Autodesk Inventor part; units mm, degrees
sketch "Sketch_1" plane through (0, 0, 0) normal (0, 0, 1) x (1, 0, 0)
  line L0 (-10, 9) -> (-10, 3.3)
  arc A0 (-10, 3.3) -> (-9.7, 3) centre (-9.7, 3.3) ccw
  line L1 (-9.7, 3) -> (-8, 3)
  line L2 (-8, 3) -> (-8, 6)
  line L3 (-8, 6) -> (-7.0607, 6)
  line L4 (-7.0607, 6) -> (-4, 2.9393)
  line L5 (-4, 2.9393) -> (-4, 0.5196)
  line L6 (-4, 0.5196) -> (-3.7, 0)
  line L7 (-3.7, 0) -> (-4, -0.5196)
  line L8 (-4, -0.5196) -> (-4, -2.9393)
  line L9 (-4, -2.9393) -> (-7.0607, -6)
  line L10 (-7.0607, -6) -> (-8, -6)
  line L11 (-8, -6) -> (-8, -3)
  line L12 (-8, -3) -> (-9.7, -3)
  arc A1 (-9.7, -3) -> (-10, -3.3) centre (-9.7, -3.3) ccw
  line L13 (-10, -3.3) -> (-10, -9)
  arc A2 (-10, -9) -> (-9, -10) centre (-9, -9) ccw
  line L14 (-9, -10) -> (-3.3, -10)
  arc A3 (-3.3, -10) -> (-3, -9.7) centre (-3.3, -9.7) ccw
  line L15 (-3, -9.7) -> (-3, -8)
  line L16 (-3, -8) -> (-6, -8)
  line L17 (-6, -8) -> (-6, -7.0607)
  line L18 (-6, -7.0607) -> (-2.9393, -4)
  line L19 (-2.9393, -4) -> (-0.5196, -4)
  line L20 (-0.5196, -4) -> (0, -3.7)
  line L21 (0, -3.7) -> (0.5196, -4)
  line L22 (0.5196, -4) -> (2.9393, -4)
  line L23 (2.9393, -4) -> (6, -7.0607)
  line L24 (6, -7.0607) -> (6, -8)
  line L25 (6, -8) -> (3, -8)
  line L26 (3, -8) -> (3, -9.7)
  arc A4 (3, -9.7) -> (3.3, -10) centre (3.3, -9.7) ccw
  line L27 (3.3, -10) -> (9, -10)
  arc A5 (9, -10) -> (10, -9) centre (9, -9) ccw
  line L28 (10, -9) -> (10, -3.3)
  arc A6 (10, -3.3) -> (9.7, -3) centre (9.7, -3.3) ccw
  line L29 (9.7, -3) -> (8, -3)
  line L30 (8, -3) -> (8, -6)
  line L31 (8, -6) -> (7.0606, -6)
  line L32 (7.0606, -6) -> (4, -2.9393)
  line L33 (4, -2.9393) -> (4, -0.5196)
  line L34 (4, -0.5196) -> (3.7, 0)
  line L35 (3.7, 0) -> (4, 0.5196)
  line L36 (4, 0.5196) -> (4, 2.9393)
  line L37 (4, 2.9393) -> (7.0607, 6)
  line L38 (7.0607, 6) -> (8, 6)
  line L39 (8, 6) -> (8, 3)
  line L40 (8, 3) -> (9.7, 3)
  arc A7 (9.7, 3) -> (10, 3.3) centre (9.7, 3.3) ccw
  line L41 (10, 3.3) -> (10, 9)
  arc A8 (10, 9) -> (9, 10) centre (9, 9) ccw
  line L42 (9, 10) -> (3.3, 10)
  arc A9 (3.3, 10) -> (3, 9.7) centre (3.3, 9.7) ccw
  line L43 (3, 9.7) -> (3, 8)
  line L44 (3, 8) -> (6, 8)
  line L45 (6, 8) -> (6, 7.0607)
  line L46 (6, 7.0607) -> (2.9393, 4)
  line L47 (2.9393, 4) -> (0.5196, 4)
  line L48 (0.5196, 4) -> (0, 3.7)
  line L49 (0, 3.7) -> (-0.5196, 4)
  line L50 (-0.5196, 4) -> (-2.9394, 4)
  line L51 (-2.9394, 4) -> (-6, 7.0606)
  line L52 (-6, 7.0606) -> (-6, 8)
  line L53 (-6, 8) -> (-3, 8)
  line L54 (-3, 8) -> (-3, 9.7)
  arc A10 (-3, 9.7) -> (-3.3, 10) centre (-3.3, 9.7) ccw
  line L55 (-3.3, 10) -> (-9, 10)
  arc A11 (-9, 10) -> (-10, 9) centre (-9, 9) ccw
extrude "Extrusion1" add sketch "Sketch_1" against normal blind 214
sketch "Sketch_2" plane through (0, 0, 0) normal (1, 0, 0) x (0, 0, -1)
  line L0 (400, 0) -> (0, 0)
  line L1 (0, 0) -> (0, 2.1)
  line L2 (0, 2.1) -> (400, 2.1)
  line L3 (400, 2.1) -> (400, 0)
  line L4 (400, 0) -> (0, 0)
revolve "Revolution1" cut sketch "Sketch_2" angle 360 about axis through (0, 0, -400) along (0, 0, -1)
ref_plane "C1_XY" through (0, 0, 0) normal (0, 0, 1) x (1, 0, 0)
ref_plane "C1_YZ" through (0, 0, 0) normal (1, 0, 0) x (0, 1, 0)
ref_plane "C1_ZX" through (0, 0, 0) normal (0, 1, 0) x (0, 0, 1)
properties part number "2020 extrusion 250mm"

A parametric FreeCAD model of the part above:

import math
import FreeCAD as App
import Part
import Sketcher

V = App.Vector
Q = App.Units.Quantity


def add_polygon(sketch, points):
    """Adds a closed chain of lines whose ends are joined by coincident constraints."""
    first, n = sketch.GeometryCount, len(points)
    for a, b in zip(points, points[1:] + points[:1]):
        sketch.addGeometry(Part.LineSegment(App.Vector(*a, 0), App.Vector(*b, 0)), False)
    for i in range(n):
        sketch.addConstraint(Sketcher.Constraint("Coincident", first + i, 2, first + (i + 1) % n, 1))

doc = App.newDocument("Part")
body = doc.addObject("PartDesign::Body", "Body")

# Sketch on XY plane
sketch1 = body.newObject("Sketcher::SketchObject", "Sketch")
sketch1.AttachmentSupport = (doc.getObject("XY_Plane"), [""])
sketch1.MapMode = "FlatFace"
sketch1.addGeometry(Part.ArcOfCircle(Part.Circle(V(-9, 9, 0), V(0, 0, 1), 1), math.radians(90), math.radians(180)), False)
sketch1.addGeometry(Part.LineSegment(V(-10, 9, 0), V(-10, 3.3, 0)), False)
sketch1.addGeometry(Part.ArcOfCircle(Part.Circle(V(-9.7, 3.3, 0), V(0, 0, 1), 0.3), math.radians(180), math.radians(270)), False)
sketch1.addGeometry(Part.LineSegment(V(-9.7, 3, 0), V(-8, 3, 0)), False)
sketch1.addGeometry(Part.LineSegment(V(-8, 3, 0), V(-8, 6, 0)), False)
sketch1.addGeometry(Part.LineSegment(V(-8, 6, 0), V(-7.0607, 6, 0)), False)
sketch1.addGeometry(Part.LineSegment(V(-7.0607, 6, 0), V(-4, 2.9393, 0)), False)
sketch1.addGeometry(Part.LineSegment(V(-4, 2.9393, 0), V(-4, 0.5196, 0)), False)
sketch1.addGeometry(Part.LineSegment(V(-4, 0.5196, 0), V(-3.7, 0, 0)), False)
sketch1.addGeometry(Part.LineSegment(V(-3.7, 0, 0), V(-4, -0.5196, 0)), False)
sketch1.addGeometry(Part.LineSegment(V(-4, -0.5196, 0), V(-4, -2.9393, 0)), False)
sketch1.addGeometry(Part.LineSegment(V(-4, -2.9393, 0), V(-7.0607, -6, 0)), False)
sketch1.addGeometry(Part.LineSegment(V(-7.0607, -6, 0), V(-8, -6, 0)), False)
sketch1.addGeometry(Part.LineSegment(V(-8, -6, 0), V(-8, -3, 0)), False)
sketch1.addGeometry(Part.LineSegment(V(-8, -3, 0), V(-9.7, -3, 0)), False)
sketch1.addGeometry(Part.ArcOfCircle(Part.Circle(V(-9.7, -3.3, 0), V(0, 0, 1), 0.3), math.radians(90), math.radians(180)), False)
sketch1.addGeometry(Part.LineSegment(V(-10, -3.3, 0), V(-10, -9, 0)), False)
sketch1.addGeometry(Part.ArcOfCircle(Part.Circle(V(-9, -9, 0), V(0, 0, 1), 1), math.radians(180), math.radians(270)), False)
sketch1.addGeometry(Part.LineSegment(V(-9, -10, 0), V(-3.3, -10, 0)), False)
sketch1.addGeometry(Part.ArcOfCircle(Part.Circle(V(-3.3, -9.7, 0), V(0, 0, 1), 0.3), math.radians(-90), math.radians(0)), False)
sketch1.addGeometry(Part.LineSegment(V(-3, -9.7, 0), V(-3, -8, 0)), False)
sketch1.addGeometry(Part.LineSegment(V(-3, -8, 0), V(-6, -8, 0)), False)
sketch1.addGeometry(Part.LineSegment(V(-6, -8, 0), V(-6, -7.0607, 0)), False)
sketch1.addGeometry(Part.LineSegment(V(-6, -7.0607, 0), V(-2.9393, -4, 0)), False)
sketch1.addGeometry(Part.LineSegment(V(-2.9393, -4, 0), V(-0.5196, -4, 0)), False)
sketch1.addGeometry(Part.LineSegment(V(-0.5196, -4, 0), V(0, -3.7, 0)), False)
sketch1.addGeometry(Part.LineSegment(V(0, -3.7, 0), V(0.5196, -4, 0)), False)
sketch1.addGeometry(Part.LineSegment(V(0.5196, -4, 0), V(2.9393, -4, 0)), False)
sketch1.addGeometry(Part.LineSegment(V(2.9393, -4, 0), V(6, -7.0607, 0)), False)
sketch1.addGeometry(Part.LineSegment(V(6, -7.0607, 0), V(6, -8, 0)), False)
sketch1.addGeometry(Part.LineSegment(V(6, -8, 0), V(3, -8, 0)), False)
sketch1.addGeometry(Part.LineSegment(V(3, -8, 0), V(3, -9.7, 0)), False)
sketch1.addGeometry(Part.ArcOfCircle(Part.Circle(V(3.3, -9.7, 0), V(0, 0, 1), 0.3), math.radians(180), math.radians(270)), False)
sketch1.addGeometry(Part.LineSegment(V(3.3, -10, 0), V(9, -10, 0)), False)
sketch1.addGeometry(Part.ArcOfCircle(Part.Circle(V(9, -9, 0), V(0, 0, 1), 1), math.radians(-90), math.radians(0)), False)
sketch1.addGeometry(Part.LineSegment(V(10, -9, 0), V(10, -3.3, 0)), False)
sketch1.addGeometry(Part.ArcOfCircle(Part.Circle(V(9.7, -3.3, 0), V(0, 0, 1), 0.3), math.radians(0), math.radians(90)), False)
sketch1.addGeometry(Part.LineSegment(V(9.7, -3, 0), V(8, -3, 0)), False)
sketch1.addGeometry(Part.LineSegment(V(8, -3, 0), V(8, -6, 0)), False)
sketch1.addGeometry(Part.LineSegment(V(8, -6, 0), V(7.0606, -6, 0)), False)
sketch1.addGeometry(Part.LineSegment(V(7.0606, -6, 0), V(4, -2.9393, 0)), False)
sketch1.addGeometry(Part.LineSegment(V(4, -2.9393, 0), V(4, -0.5196, 0)), False)
sketch1.addGeometry(Part.LineSegment(V(4, -0.5196, 0), V(3.7, 0, 0)), False)
sketch1.addGeometry(Part.LineSegment(V(3.7, 0, 0), V(4, 0.5196, 0)), False)
sketch1.addGeometry(Part.LineSegment(V(4, 0.5196, 0), V(4, 2.9393, 0)), False)
sketch1.addGeometry(Part.LineSegment(V(4, 2.9393, 0), V(7.0607, 6, 0)), False)
sketch1.addGeometry(Part.LineSegment(V(7.0607, 6, 0), V(8, 6, 0)), False)
sketch1.addGeometry(Part.LineSegment(V(8, 6, 0), V(8, 3, 0)), False)
sketch1.addGeometry(Part.LineSegment(V(8, 3, 0), V(9.7, 3, 0)), False)
sketch1.addGeometry(Part.ArcOfCircle(Part.Circle(V(9.7, 3.3, 0), V(0, 0, 1), 0.3), math.radians(-90), math.radians(0)), False)
sketch1.addGeometry(Part.LineSegment(V(10, 3.3, 0), V(10, 9, 0)), False)
sketch1.addGeometry(Part.ArcOfCircle(Part.Circle(V(9, 9, 0), V(0, 0, 1), 1), math.radians(0), math.radians(90)), False)
sketch1.addGeometry(Part.LineSegment(V(9, 10, 0), V(3.3, 10, 0)), False)
sketch1.addGeometry(Part.ArcOfCircle(Part.Circle(V(3.3, 9.7, 0), V(0, 0, 1), 0.3), math.radians(90), math.radians(180)), False)
sketch1.addGeometry(Part.LineSegment(V(3, 9.7, 0), V(3, 8, 0)), False)
sketch1.addGeometry(Part.LineSegment(V(3, 8, 0), V(6, 8, 0)), False)
sketch1.addGeometry(Part.LineSegment(V(6, 8, 0), V(6, 7.0607, 0)), False)
sketch1.addGeometry(Part.LineSegment(V(6, 7.0607, 0), V(2.9393, 4, 0)), False)
sketch1.addGeometry(Part.LineSegment(V(2.9393, 4, 0), V(0.5196, 4, 0)), False)
sketch1.addGeometry(Part.LineSegment(V(0.5196, 4, 0), V(0, 3.7, 0)), False)
sketch1.addGeometry(Part.LineSegment(V(0, 3.7, 0), V(-0.5196, 4, 0)), False)
sketch1.addGeometry(Part.LineSegment(V(-0.5196, 4, 0), V(-2.9394, 4, 0)), False)
sketch1.addGeometry(Part.LineSegment(V(-2.9394, 4, 0), V(-6, 7.0606, 0)), False)
sketch1.addGeometry(Part.LineSegment(V(-6, 7.0606, 0), V(-6, 8, 0)), False)
sketch1.addGeometry(Part.LineSegment(V(-6, 8, 0), V(-3, 8, 0)), False)
sketch1.addGeometry(Part.LineSegment(V(-3, 8, 0), V(-3, 9.7, 0)), False)
sketch1.addGeometry(Part.ArcOfCircle(Part.Circle(V(-3.3, 9.7, 0), V(0, 0, 1), 0.3), math.radians(0), math.radians(90)), False)
sketch1.addGeometry(Part.LineSegment(V(-3.3, 10, 0), V(-9, 10, 0)), False)
sketch1.addConstraint(Sketcher.Constraint("Tangent", 0, 2, 1, 1))
sketch1.addConstraint(Sketcher.Constraint("Tangent", 1, 2, 2, 1))
sketch1.addConstraint(Sketcher.Constraint("Tangent", 2, 2, 3, 1))
sketch1.addConstraint(Sketcher.Constraint("Coincident", 3, 2, 4, 1))
sketch1.addConstraint(Sketcher.Constraint("Coincident", 4, 2, 5, 1))
sketch1.addConstraint(Sketcher.Constraint("Coincident", 5, 2, 6, 1))
sketch1.addConstraint(Sketcher.Constraint("Coincident", 6, 2, 7, 1))
sketch1.addConstraint(Sketcher.Constraint("Coincident", 7, 2, 8, 1))
sketch1.addConstraint(Sketcher.Constraint("Coincident", 8, 2, 9, 1))
sketch1.addConstraint(Sketcher.Constraint("Coincident", 9, 2, 10, 1))
sketch1.addConstraint(Sketcher.Constraint("Coincident", 10, 2, 11, 1))
sketch1.addConstraint(Sketcher.Constraint("Coincident", 11, 2, 12, 1))
sketch1.addConstraint(Sketcher.Constraint("Coincident", 12, 2, 13, 1))
sketch1.addConstraint(Sketcher.Constraint("Coincident", 13, 2, 14, 1))
sketch1.addConstraint(Sketcher.Constraint("Tangent", 14, 2, 15, 1))
sketch1.addConstraint(Sketcher.Constraint("Tangent", 15, 2, 16, 1))
sketch1.addConstraint(Sketcher.Constraint("Tangent", 16, 2, 17, 1))
sketch1.addConstraint(Sketcher.Constraint("Tangent", 17, 2, 18, 1))
sketch1.addConstraint(Sketcher.Constraint("Tangent", 18, 2, 19, 1))
sketch1.addConstraint(Sketcher.Constraint("Tangent", 19, 2, 20, 1))
sketch1.addConstraint(Sketcher.Constraint("Coincident", 20, 2, 21, 1))
sketch1.addConstraint(Sketcher.Constraint("Coincident", 21, 2, 22, 1))
sketch1.addConstraint(Sketcher.Constraint("Coincident", 22, 2, 23, 1))
sketch1.addConstraint(Sketcher.Constraint("Coincident", 23, 2, 24, 1))
sketch1.addConstraint(Sketcher.Constraint("Coincident", 24, 2, 25, 1))
sketch1.addConstraint(Sketcher.Constraint("Coincident", 25, 2, 26, 1))
sketch1.addConstraint(Sketcher.Constraint("Coincident", 26, 2, 27, 1))
sketch1.addConstraint(Sketcher.Constraint("Coincident", 27, 2, 28, 1))
sketch1.addConstraint(Sketcher.Constraint("Coincident", 28, 2, 29, 1))
sketch1.addConstraint(Sketcher.Constraint("Coincident", 29, 2, 30, 1))
sketch1.addConstraint(Sketcher.Constraint("Coincident", 30, 2, 31, 1))
sketch1.addConstraint(Sketcher.Constraint("Tangent", 31, 2, 32, 1))
sketch1.addConstraint(Sketcher.Constraint("Tangent", 32, 2, 33, 1))
sketch1.addConstraint(Sketcher.Constraint("Tangent", 33, 2, 34, 1))
sketch1.addConstraint(Sketcher.Constraint("Tangent", 34, 2, 35, 1))
sketch1.addConstraint(Sketcher.Constraint("Tangent", 35, 2, 36, 1))
sketch1.addConstraint(Sketcher.Constraint("Tangent", 36, 2, 37, 1))
sketch1.addConstraint(Sketcher.Constraint("Coincident", 37, 2, 38, 1))
sketch1.addConstraint(Sketcher.Constraint("Coincident", 38, 2, 39, 1))
sketch1.addConstraint(Sketcher.Constraint("Coincident", 39, 2, 40, 1))
sketch1.addConstraint(Sketcher.Constraint("Coincident", 40, 2, 41, 1))
sketch1.addConstraint(Sketcher.Constraint("Coincident", 41, 2, 42, 1))
sketch1.addConstraint(Sketcher.Constraint("Coincident", 42, 2, 43, 1))
sketch1.addConstraint(Sketcher.Constraint("Coincident", 43, 2, 44, 1))
sketch1.addConstraint(Sketcher.Constraint("Coincident", 44, 2, 45, 1))
sketch1.addConstraint(Sketcher.Constraint("Coincident", 45, 2, 46, 1))
sketch1.addConstraint(Sketcher.Constraint("Coincident", 46, 2, 47, 1))
sketch1.addConstraint(Sketcher.Constraint("Coincident", 47, 2, 48, 1))
sketch1.addConstraint(Sketcher.Constraint("Tangent", 48, 2, 49, 1))
sketch1.addConstraint(Sketcher.Constraint("Tangent", 49, 2, 50, 1))
sketch1.addConstraint(Sketcher.Constraint("Tangent", 50, 2, 51, 1))
sketch1.addConstraint(Sketcher.Constraint("Tangent", 51, 2, 52, 1))
sketch1.addConstraint(Sketcher.Constraint("Tangent", 52, 2, 53, 1))
sketch1.addConstraint(Sketcher.Constraint("Tangent", 53, 2, 54, 1))
sketch1.addConstraint(Sketcher.Constraint("Coincident", 54, 2, 55, 1))
sketch1.addConstraint(Sketcher.Constraint("Coincident", 55, 2, 56, 1))
sketch1.addConstraint(Sketcher.Constraint("Coincident", 56, 2, 57, 1))
sketch1.addConstraint(Sketcher.Constraint("Coincident", 57, 2, 58, 1))
sketch1.addConstraint(Sketcher.Constraint("Coincident", 58, 2, 59, 1))
sketch1.addConstraint(Sketcher.Constraint("Coincident", 59, 2, 60, 1))
sketch1.addConstraint(Sketcher.Constraint("Coincident", 60, 2, 61, 1))
sketch1.addConstraint(Sketcher.Constraint("Coincident", 61, 2, 62, 1))
sketch1.addConstraint(Sketcher.Constraint("Coincident", 62, 2, 63, 1))
sketch1.addConstraint(Sketcher.Constraint("Coincident", 63, 2, 64, 1))
sketch1.addConstraint(Sketcher.Constraint("Coincident", 64, 2, 65, 1))
sketch1.addConstraint(Sketcher.Constraint("Tangent", 65, 2, 66, 1))
sketch1.addConstraint(Sketcher.Constraint("Tangent", 66, 2, 67, 1))
sketch1.addConstraint(Sketcher.Constraint("Tangent", 67, 2, 0, 1))
sketch1.addConstraint(Sketcher.Constraint("Vertical", 1))
sketch1.addConstraint(Sketcher.Constraint("Horizontal", 3))
sketch1.addConstraint(Sketcher.Constraint("Vertical", 4))
sketch1.addConstraint(Sketcher.Constraint("Horizontal", 5))
sketch1.addConstraint(Sketcher.Constraint("Vertical", 7))
sketch1.addConstraint(Sketcher.Constraint("Vertical", 10))
sketch1.addConstraint(Sketcher.Constraint("Horizontal", 12))
sketch1.addConstraint(Sketcher.Constraint("Vertical", 13))
sketch1.addConstraint(Sketcher.Constraint("Horizontal", 14))
sketch1.addConstraint(Sketcher.Constraint("Vertical", 16))
sketch1.addConstraint(Sketcher.Constraint("Horizontal", 18))
sketch1.addConstraint(Sketcher.Constraint("Vertical", 20))
sketch1.addConstraint(Sketcher.Constraint("Horizontal", 21))
sketch1.addConstraint(Sketcher.Constraint("Vertical", 22))
sketch1.addConstraint(Sketcher.Constraint("Horizontal", 24))
sketch1.addConstraint(Sketcher.Constraint("Horizontal", 27))
sketch1.addConstraint(Sketcher.Constraint("Vertical", 29))
sketch1.addConstraint(Sketcher.Constraint("Horizontal", 30))
sketch1.addConstraint(Sketcher.Constraint("Vertical", 31))
sketch1.addConstraint(Sketcher.Constraint("Horizontal", 33))
sketch1.addConstraint(Sketcher.Constraint("Vertical", 35))
sketch1.addConstraint(Sketcher.Constraint("Horizontal", 37))
sketch1.addConstraint(Sketcher.Constraint("Vertical", 38))
sketch1.addConstraint(Sketcher.Constraint("Horizontal", 39))
sketch1.addConstraint(Sketcher.Constraint("Vertical", 41))
sketch1.addConstraint(Sketcher.Constraint("Vertical", 44))
sketch1.addConstraint(Sketcher.Constraint("Horizontal", 46))
sketch1.addConstraint(Sketcher.Constraint("Vertical", 47))
sketch1.addConstraint(Sketcher.Constraint("Horizontal", 48))
sketch1.addConstraint(Sketcher.Constraint("Vertical", 50))
sketch1.addConstraint(Sketcher.Constraint("Horizontal", 52))
sketch1.addConstraint(Sketcher.Constraint("Vertical", 54))
sketch1.addConstraint(Sketcher.Constraint("Horizontal", 55))
sketch1.addConstraint(Sketcher.Constraint("Vertical", 56))
sketch1.addConstraint(Sketcher.Constraint("Horizontal", 58))
sketch1.addConstraint(Sketcher.Constraint("Horizontal", 61))
sketch1.addConstraint(Sketcher.Constraint("Vertical", 63))
sketch1.addConstraint(Sketcher.Constraint("Horizontal", 64))
sketch1.addConstraint(Sketcher.Constraint("Vertical", 65))
sketch1.addConstraint(Sketcher.Constraint("Horizontal", 67))
sketch1.addConstraint(Sketcher.Constraint("Equal", 2, 15))
sketch1.addConstraint(Sketcher.Constraint("Equal", 0, 17))
sketch1.addConstraint(Sketcher.Constraint("Equal", 15, 19))
sketch1.addConstraint(Sketcher.Constraint("Equal", 19, 32))
sketch1.addConstraint(Sketcher.Constraint("Equal", 17, 34))
sketch1.addConstraint(Sketcher.Constraint("Equal", 32, 36))
sketch1.addConstraint(Sketcher.Constraint("Equal", 36, 49))
sketch1.addConstraint(Sketcher.Constraint("Equal", 34, 51))
sketch1.addConstraint(Sketcher.Constraint("Equal", 49, 53))
sketch1.addConstraint(Sketcher.Constraint("Equal", 53, 66))
sketch1.addConstraint(Sketcher.Constraint("Symmetric", 0, 3, 34, 3, -1, 1))
sketch1.addConstraint(Sketcher.Constraint("Symmetric", 15, 3, 49, 3, -1, 1))
sketch1.addConstraint(Sketcher.Constraint("Symmetric", 19, 3, 53, 3, -1, 1))
sketch1.addConstraint(Sketcher.Constraint("Symmetric", 3, 2, 37, 2, -1, 1))
sketch1.addConstraint(Sketcher.Constraint("Symmetric", 5, 2, 39, 2, -1, 1))
sketch1.addConstraint(Sketcher.Constraint("Symmetric", 6, 2, 40, 2, -1, 1))
sketch1.addConstraint(Sketcher.Constraint("Symmetric", 8, 2, 42, 2, -1, 1))
sketch1.addConstraint(Sketcher.Constraint("Symmetric", 9, 2, 43, 2, -1, 1))
sketch1.addConstraint(Sketcher.Constraint("Symmetric", 11, 2, 45, 2, -1, 1))
sketch1.addConstraint(Sketcher.Constraint("Symmetric", 21, 2, 55, 2, -1, 1))
sketch1.addConstraint(Sketcher.Constraint("Symmetric", 23, 2, 57, 2, -1, 1))
sketch1.addConstraint(Sketcher.Constraint("Symmetric", 25, 2, 59, 2, -1, 1))
sketch1.addConstraint(Sketcher.Constraint("Symmetric", 26, 2, 60, 2, -1, 1))
sketch1.addConstraint(Sketcher.Constraint("Symmetric", 28, 2, 62, 2, -1, 1))
sketch1.addConstraint(Sketcher.Constraint("Symmetric", 30, 2, 64, 2, -1, 1))
sketch1.addConstraint(Sketcher.Constraint("Symmetric", 19, 3, 32, 3, -2))
sketch1.addConstraint(Sketcher.Constraint("Symmetric", 15, 3, 36, 3, -2))
sketch1.addConstraint(Sketcher.Constraint("Symmetric", 24, 2, 26, 2, -2))
sketch1.addConstraint(Sketcher.Constraint("Symmetric", 22, 2, 28, 2, -2))
sketch1.addConstraint(Sketcher.Constraint("Symmetric", 12, 2, 38, 2, -2))
sketch1.addConstraint(Sketcher.Constraint("Symmetric", 10, 2, 40, 2, -2))
sketch1.addConstraint(Sketcher.Constraint("PointOnObject", 8, 2, -1))
sketch1.addConstraint(Sketcher.Constraint("PointOnObject", 25, 2, -2))
sketch1.addConstraint(Sketcher.Constraint("Perpendicular", 6, 11))
sketch1.addConstraint(Sketcher.Constraint("Parallel", 11, 23))
sketch1.addConstraint(Sketcher.Constraint("Perpendicular", 8, 25))
sketch1.addConstraint(Sketcher.Constraint("Perpendicular", 9, 26))
sketch1.addConstraint(Sketcher.Constraint("Perpendicular", 23, 28))
sketch1.addConstraint(Sketcher.Constraint("Perpendicular", 25, 42))
sketch1.addConstraint(Sketcher.Constraint("Perpendicular", 40, 45))
sketch1.addConstraint(Sketcher.Constraint("Parallel", 45, 57))
sketch1.addConstraint(Sketcher.Constraint("Perpendicular", 42, 59))
sketch1.addConstraint(Sketcher.Constraint("Perpendicular", 57, 62))
sketch1.addConstraint(Sketcher.Constraint("Horizontal", 21, 2, 29, 2))
sketch1.addConstraint(Sketcher.Constraint("Vertical", 5, 2, 11, 2))
sketch1.addConstraint(Sketcher.Constraint("Vertical", 38, 2, 46, 2))
sketch1.addConstraint(Sketcher.Constraint("Equal", 67, 1))
sketch1.addConstraint(Sketcher.Constraint("Equal", 64, 4))
sketch1.addConstraint(Sketcher.Constraint("Equal", 61, 7))
sketch1.addConstraint(Sketcher.Constraint("Equal", 48, 20))
sketch1.addConstraint(Sketcher.Constraint("Equal", 46, 22))
sketch1.addConstraint(Sketcher.Constraint("Equal", 11, 23))
sketch1.addConstraint(Sketcher.Constraint("Equal", 9, 25))
sketch1.addConstraint(Sketcher.Constraint("Radius", 0, 1.0))
sketch1.addConstraint(Sketcher.Constraint("Radius", 2, 0.3))
sketch1.addConstraint(Sketcher.Constraint("DistanceX", 21, 2, 21, 1, 3.0))
sketch1.addConstraint(Sketcher.Constraint("Angle", 8, Q("-59.9993 deg")))
sketch1.addConstraint(Sketcher.Constraint("DistanceX", 3, 1, 3, 2, 1.7))
sketch1.addConstraint(Sketcher.Constraint("DistanceX", 18, 1, 18, 2, 5.7))
sketch1.addConstraint(Sketcher.Constraint("DistanceX", 0, 3, -1, 1, 9.0))
sketch1.addConstraint(Sketcher.Constraint("DistanceX", 6, 2, -1, 1, 4.0))
sketch1.addConstraint(Sketcher.Constraint("Distance", 8, 0.6))
sketch1.addConstraint(Sketcher.Constraint("DistanceX", 5, 1, 5, 2, 0.9393))
pad1 = body.newObject("PartDesign::Pad", "Pad")
pad1.Profile = sketch1
pad1.Length = 214
pad1.Reversed = True

# Sketch on YZ plane
sketch2 = body.newObject("Sketcher::SketchObject", "Sketch001")
sketch2.AttachmentSupport = (doc.getObject("YZ_Plane"), [""])
sketch2.MapMode = "FlatFace"
add_polygon(sketch2, [(0, 0), (0, -400), (2.1, -400), (2.1, 0)])  # lines 0-3
sketch2.addConstraint(Sketcher.Constraint("Vertical", 0))
sketch2.addConstraint(Sketcher.Constraint("Horizontal", 1))
sketch2.addConstraint(Sketcher.Constraint("Vertical", 2))
sketch2.addConstraint(Sketcher.Constraint("Horizontal", 3))
sketch2.addConstraint(Sketcher.Constraint("Coincident", 3, 2, -1, 1))
sketch2.addConstraint(Sketcher.Constraint("DistanceY", 0, 2, 0, 1, 400.0))
sketch2.addConstraint(Sketcher.Constraint("DistanceX", 1, 1, 1, 2, 2.1))
groove = body.newObject("PartDesign::Groove", "Groove")
groove.Profile = sketch2
groove.ReferenceAxis = (sketch2, ["V_Axis"])
groove.Angle = 360

doc.recompute()
